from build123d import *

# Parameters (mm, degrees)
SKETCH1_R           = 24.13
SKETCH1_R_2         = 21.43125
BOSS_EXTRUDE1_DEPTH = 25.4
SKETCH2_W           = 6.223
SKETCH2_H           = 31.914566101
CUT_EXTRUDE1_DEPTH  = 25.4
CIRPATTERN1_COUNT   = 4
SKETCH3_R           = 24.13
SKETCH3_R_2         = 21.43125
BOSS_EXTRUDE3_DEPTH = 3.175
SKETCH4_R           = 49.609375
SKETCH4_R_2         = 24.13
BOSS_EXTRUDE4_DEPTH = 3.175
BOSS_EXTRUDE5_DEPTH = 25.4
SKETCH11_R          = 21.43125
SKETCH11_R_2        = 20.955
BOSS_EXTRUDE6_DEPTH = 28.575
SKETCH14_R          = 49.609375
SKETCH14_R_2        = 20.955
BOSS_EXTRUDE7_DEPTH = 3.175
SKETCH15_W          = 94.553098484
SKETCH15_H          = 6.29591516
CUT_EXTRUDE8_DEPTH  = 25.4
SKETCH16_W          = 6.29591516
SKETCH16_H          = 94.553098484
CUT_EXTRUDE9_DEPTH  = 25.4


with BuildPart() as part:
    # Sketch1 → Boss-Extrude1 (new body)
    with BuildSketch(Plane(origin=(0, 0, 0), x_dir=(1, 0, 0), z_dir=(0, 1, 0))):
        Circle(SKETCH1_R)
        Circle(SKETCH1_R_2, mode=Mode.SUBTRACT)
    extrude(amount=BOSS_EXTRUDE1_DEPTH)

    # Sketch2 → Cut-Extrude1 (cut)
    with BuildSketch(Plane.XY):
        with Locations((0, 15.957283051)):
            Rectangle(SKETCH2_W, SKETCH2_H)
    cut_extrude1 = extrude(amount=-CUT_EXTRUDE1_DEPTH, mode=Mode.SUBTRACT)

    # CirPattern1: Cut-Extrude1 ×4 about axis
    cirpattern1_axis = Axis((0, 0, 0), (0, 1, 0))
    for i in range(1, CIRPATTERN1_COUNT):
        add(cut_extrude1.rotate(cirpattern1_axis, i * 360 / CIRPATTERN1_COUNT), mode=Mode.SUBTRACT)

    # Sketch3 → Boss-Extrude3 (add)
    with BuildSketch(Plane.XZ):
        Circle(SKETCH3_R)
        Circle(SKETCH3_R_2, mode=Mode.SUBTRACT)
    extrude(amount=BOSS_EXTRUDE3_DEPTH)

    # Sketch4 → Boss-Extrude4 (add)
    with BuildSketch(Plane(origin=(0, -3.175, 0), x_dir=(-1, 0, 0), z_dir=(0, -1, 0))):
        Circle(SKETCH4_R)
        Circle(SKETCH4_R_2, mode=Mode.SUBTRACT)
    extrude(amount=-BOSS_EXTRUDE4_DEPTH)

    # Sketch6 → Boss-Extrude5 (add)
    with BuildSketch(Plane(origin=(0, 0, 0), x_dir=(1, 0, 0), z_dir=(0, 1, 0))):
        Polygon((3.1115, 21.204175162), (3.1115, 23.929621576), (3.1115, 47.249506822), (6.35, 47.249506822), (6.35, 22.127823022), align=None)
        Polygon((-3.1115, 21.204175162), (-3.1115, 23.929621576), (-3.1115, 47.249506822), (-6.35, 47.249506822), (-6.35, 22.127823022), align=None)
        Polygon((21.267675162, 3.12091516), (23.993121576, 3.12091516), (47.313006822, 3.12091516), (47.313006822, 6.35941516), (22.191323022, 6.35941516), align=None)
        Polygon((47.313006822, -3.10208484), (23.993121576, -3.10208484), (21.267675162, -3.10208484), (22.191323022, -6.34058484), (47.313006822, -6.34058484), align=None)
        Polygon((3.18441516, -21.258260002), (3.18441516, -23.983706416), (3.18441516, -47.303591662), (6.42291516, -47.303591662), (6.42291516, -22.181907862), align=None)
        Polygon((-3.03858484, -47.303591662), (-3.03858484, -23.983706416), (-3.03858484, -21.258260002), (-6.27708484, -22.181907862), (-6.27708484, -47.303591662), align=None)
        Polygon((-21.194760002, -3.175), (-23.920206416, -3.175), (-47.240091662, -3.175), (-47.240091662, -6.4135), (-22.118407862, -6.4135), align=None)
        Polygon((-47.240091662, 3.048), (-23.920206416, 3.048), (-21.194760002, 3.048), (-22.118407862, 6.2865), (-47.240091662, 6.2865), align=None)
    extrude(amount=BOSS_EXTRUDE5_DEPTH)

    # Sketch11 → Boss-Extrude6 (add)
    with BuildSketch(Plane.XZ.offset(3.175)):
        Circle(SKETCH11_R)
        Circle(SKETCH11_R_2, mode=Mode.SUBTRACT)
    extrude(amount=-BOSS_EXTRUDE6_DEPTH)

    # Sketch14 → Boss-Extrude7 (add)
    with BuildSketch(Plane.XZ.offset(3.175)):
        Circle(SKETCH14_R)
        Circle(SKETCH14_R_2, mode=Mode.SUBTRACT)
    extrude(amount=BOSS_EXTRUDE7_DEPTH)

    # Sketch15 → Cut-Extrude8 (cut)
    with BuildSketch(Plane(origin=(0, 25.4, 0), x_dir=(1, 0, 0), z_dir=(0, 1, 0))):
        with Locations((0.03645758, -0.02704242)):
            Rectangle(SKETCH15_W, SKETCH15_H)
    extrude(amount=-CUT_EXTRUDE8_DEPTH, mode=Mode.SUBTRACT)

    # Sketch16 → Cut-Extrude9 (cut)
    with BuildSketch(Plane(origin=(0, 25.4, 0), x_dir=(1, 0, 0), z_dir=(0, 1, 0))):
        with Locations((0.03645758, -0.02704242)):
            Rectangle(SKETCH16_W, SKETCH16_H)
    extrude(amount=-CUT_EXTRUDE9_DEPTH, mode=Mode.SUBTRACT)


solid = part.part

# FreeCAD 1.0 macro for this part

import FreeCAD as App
import Part
import Sketcher
from FreeCAD import Vector
Q = App.Units.Quantity

doc = App.newDocument("Part")
body = doc.addObject("PartDesign::Body", "Body")
body.AllowCompound = True

sketch1 = doc.addObject("Sketcher::SketchObject", "Sketch")
body.addObject(sketch1)
sketch1.AttachmentSupport = (doc.XZ_Plane, [""])
sketch1.MapMode = "FlatFace"
sketch1.addGeometry(Part.Circle(Vector(0, 0, 0), Vector(0, 0, 1), 24), False)
sketch1.addGeometry(Part.Circle(Vector(0, 0, 0), Vector(0, 0, 1), 21), False)
sketch1.addConstraint(Sketcher.Constraint("Coincident", 0, 3, -1, 1))
sketch1.addConstraint(Sketcher.Constraint("Coincident", 1, 3, -1, 1))
sketch1.addConstraint(Sketcher.Constraint("Diameter", 0, Q("1.9 in")))
sketch1.addConstraint(Sketcher.Constraint("Diameter", 1, Q("1.6875 in")))
pad1 = doc.addObject("PartDesign::Pad", "Pad")
body.addObject(pad1)
pad1.Profile = sketch1
pad1.Length = Q("1 in")
pad1.Reversed = True

sketch2 = doc.addObject("Sketcher::SketchObject", "Sketch001")
body.addObject(sketch2)
sketch2.AttachmentSupport = (doc.XY_Plane, [""])
sketch2.MapMode = "FlatFace"
sketch2.addGeometry(Part.LineSegment(Vector(-3, 32, 0), Vector(-3, 0, 0)), False)
sketch2.addGeometry(Part.LineSegment(Vector(-3, 0, 0), Vector(3, 0, 0)), False)
sketch2.addGeometry(Part.LineSegment(Vector(3, 0, 0), Vector(3, 32, 0)), False)
sketch2.addGeometry(Part.LineSegment(Vector(3, 32, 0), Vector(-3, 32, 0)), False)
sketch2.addConstraint(Sketcher.Constraint("Coincident", 0, 2, 1, 1))
sketch2.addConstraint(Sketcher.Constraint("Coincident", 1, 2, 2, 1))
sketch2.addConstraint(Sketcher.Constraint("Coincident", 2, 2, 3, 1))
sketch2.addConstraint(Sketcher.Constraint("Coincident", 3, 2, 0, 1))
sketch2.addConstraint(Sketcher.Constraint("Vertical", 0))
sketch2.addConstraint(Sketcher.Constraint("Horizontal", 1))
sketch2.addConstraint(Sketcher.Constraint("Vertical", 2))
sketch2.addConstraint(Sketcher.Constraint("Horizontal", 3))
sketch2.addConstraint(Sketcher.Constraint("Symmetric", 0, 2, 1, 2, -1, 1))
sketch2.addConstraint(Sketcher.Constraint("DistanceX", 1, 1, 1, 2, Q("0.245 in")))
sketch2.addConstraint(Sketcher.Constraint("DistanceY", 0, 2, 0, 1, Q("31.914566 mm")))
pocket1 = doc.addObject("PartDesign::Pocket", "Pocket")
body.addObject(pocket1)
pocket1.Profile = sketch2
pocket1.Length = Q("1 in")
doc.recompute()

polarpattern = doc.addObject("PartDesign::PolarPattern", "PolarPattern")
body.addObject(polarpattern)
polarpattern.Originals = [pocket1]
polarpattern.Axis = (doc.Y_Axis, [""])
polarpattern.Angle = 360
polarpattern.Occurrences = 4
body.Tip = polarpattern

sketch3 = doc.addObject("Sketcher::SketchObject", "Sketch002")
body.addObject(sketch3)
sketch3.AttachmentSupport = (doc.XZ_Plane, [""])
sketch3.MapMode = "FlatFace"
sketch3.addGeometry(Part.Circle(Vector(0, 0, 0), Vector(0, 0, 1), 24), False)
sketch3.addGeometry(Part.Circle(Vector(0, 0, 0), Vector(0, 0, 1), 21), False)
sketch3.addConstraint(Sketcher.Constraint("Coincident", 0, 3, -1, 1))
sketch3.addConstraint(Sketcher.Constraint("Coincident", 1, 3, -1, 1))
sketch3.addConstraint(Sketcher.Constraint("Diameter", 0, Q("1.9 in")))
sketch3.addConstraint(Sketcher.Constraint("Diameter", 1, Q("1.6875 in")))
pad2 = doc.addObject("PartDesign::Pad", "Pad001")
body.addObject(pad2)
pad2.Profile = sketch3
pad2.Length = Q("0.125 in")

sketch4 = doc.addObject("Sketcher::SketchObject", "Sketch003")
body.addObject(sketch4)
sketch4.AttachmentSupport = (doc.XZ_Plane, [""])
sketch4.MapMode = "FlatFace"
sketch4.AttachmentOffset = App.Placement(Vector(0, 0, 0.125 * 25.4), App.Rotation())
sketch4.addGeometry(Part.Circle(Vector(0, 0, 0), Vector(0, 0, 1), 50), False)
sketch4.addGeometry(Part.Circle(Vector(0, 0, 0), Vector(0, 0, 1), 24), False)
sketch4.addConstraint(Sketcher.Constraint("Coincident", 0, 3, -1, 1))
sketch4.addConstraint(Sketcher.Constraint("Coincident", 1, 3, -1, 1))
sketch4.addConstraint(Sketcher.Constraint("Diameter", 1, Q("1.9 in")))
sketch4.addConstraint(Sketcher.Constraint("Diameter", 0, Q("3.90625 in")))
pad3 = doc.addObject("PartDesign::Pad", "Pad002")
body.addObject(pad3)
pad3.Profile = sketch4
pad3.Length = Q("0.125 in")
pad3.Reversed = True

sketch5 = doc.addObject("Sketcher::SketchObject", "Sketch004")
body.addObject(sketch5)
sketch5.AttachmentSupport = (doc.XZ_Plane, [""])
sketch5.MapMode = "FlatFace"
sketch5.addGeometry(Part.LineSegment(Vector(3.1, -47.2, 0), Vector(3.1, -21.2, 0)), False)
sketch5.addGeometry(Part.LineSegment(Vector(3.1, -21.2, 0), Vector(6.3, -22.1, 0)), False)
sketch5.addGeometry(Part.LineSegment(Vector(6.3, -22.1, 0), Vector(6.3, -47.2, 0)), False)
sketch5.addGeometry(Part.LineSegment(Vector(6.3, -47.2, 0), Vector(3.1, -47.2, 0)), False)
sketch5.addGeometry(Part.LineSegment(Vector(-3.1, -21.2, 0), Vector(-3.1, -47.2, 0)), False)
sketch5.addGeometry(Part.LineSegment(Vector(-3.1, -47.2, 0), Vector(-6.3, -47.2, 0)), False)
sketch5.addGeometry(Part.LineSegment(Vector(-6.3, -47.2, 0), Vector(-6.3, -22.1, 0)), False)
sketch5.addGeometry(Part.LineSegment(Vector(-6.3, -22.1, 0), Vector(-3.1, -21.2, 0)), False)
sketch5.addGeometry(Part.LineSegment(Vector(21.3, -3.1, 0), Vector(47.3, -3.1, 0)), False)
sketch5.addGeometry(Part.LineSegment(Vector(47.3, -3.1, 0), Vector(47.3, -6.4, 0)), False)
sketch5.addGeometry(Part.LineSegment(Vector(47.3, -6.4, 0), Vector(22.2, -6.4, 0)), False)
sketch5.addGeometry(Part.LineSegment(Vector(22.2, -6.4, 0), Vector(21.3, -3.1, 0)), False)
sketch5.addGeometry(Part.LineSegment(Vector(47.3, 3.1, 0), Vector(21.3, 3.1, 0)), False)
sketch5.addGeometry(Part.LineSegment(Vector(21.3, 3.1, 0), Vector(22.2, 6.3, 0)), False)
sketch5.addGeometry(Part.LineSegment(Vector(22.2, 6.3, 0), Vector(47.3, 6.3, 0)), False)
sketch5.addGeometry(Part.LineSegment(Vector(47.3, 6.3, 0), Vector(47.3, 3.1, 0)), False)
sketch5.addGeometry(Part.LineSegment(Vector(3.2, 21.3, 0), Vector(3.2, 47.3, 0)), False)
sketch5.addGeometry(Part.LineSegment(Vector(3.2, 47.3, 0), Vector(6.4, 47.3, 0)), False)
sketch5.addGeometry(Part.LineSegment(Vector(6.4, 47.3, 0), Vector(6.4, 22.2, 0)), False)
sketch5.addGeometry(Part.LineSegment(Vector(6.4, 22.2, 0), Vector(3.2, 21.3, 0)), False)
sketch5.addGeometry(Part.LineSegment(Vector(-3, 47.3, 0), Vector(-3, 21.3, 0)), False)
sketch5.addGeometry(Part.LineSegment(Vector(-3, 21.3, 0), Vector(-6.3, 22.2, 0)), False)
sketch5.addGeometry(Part.LineSegment(Vector(-6.3, 22.2, 0), Vector(-6.3, 47.3, 0)), False)
sketch5.addGeometry(Part.LineSegment(Vector(-6.3, 47.3, 0), Vector(-3, 47.3, 0)), False)
sketch5.addGeometry(Part.LineSegment(Vector(-21.2, 3.2, 0), Vector(-47.2, 3.2, 0)), False)
sketch5.addGeometry(Part.LineSegment(Vector(-47.2, 3.2, 0), Vector(-47.2, 6.4, 0)), False)
sketch5.addGeometry(Part.LineSegment(Vector(-47.2, 6.4, 0), Vector(-22.1, 6.4, 0)), False)
sketch5.addGeometry(Part.LineSegment(Vector(-22.1, 6.4, 0), Vector(-21.2, 3.2, 0)), False)
sketch5.addGeometry(Part.LineSegment(Vector(-47.2, -3, 0), Vector(-21.2, -3, 0)), False)
sketch5.addGeometry(Part.LineSegment(Vector(-21.2, -3, 0), Vector(-22.1, -6.3, 0)), False)
sketch5.addGeometry(Part.LineSegment(Vector(-22.1, -6.3, 0), Vector(-47.2, -6.3, 0)), False)
sketch5.addGeometry(Part.LineSegment(Vector(-47.2, -6.3, 0), Vector(-47.2, -3, 0)), False)
sketch5.addConstraint(Sketcher.Constraint("Coincident", 0, 2, 1, 1))
sketch5.addConstraint(Sketcher.Constraint("Coincident", 1, 2, 2, 1))
sketch5.addConstraint(Sketcher.Constraint("Coincident", 2, 2, 3, 1))
sketch5.addConstraint(Sketcher.Constraint("Coincident", 3, 2, 0, 1))
sketch5.addConstraint(Sketcher.Constraint("Coincident", 4, 2, 5, 1))
sketch5.addConstraint(Sketcher.Constraint("Coincident", 5, 2, 6, 1))
sketch5.addConstraint(Sketcher.Constraint("Coincident", 6, 2, 7, 1))
sketch5.addConstraint(Sketcher.Constraint("Coincident", 7, 2, 4, 1))
sketch5.addConstraint(Sketcher.Constraint("Coincident", 8, 2, 9, 1))
sketch5.addConstraint(Sketcher.Constraint("Coincident", 9, 2, 10, 1))
sketch5.addConstraint(Sketcher.Constraint("Coincident", 10, 2, 11, 1))
sketch5.addConstraint(Sketcher.Constraint("Coincident", 11, 2, 8, 1))
sketch5.addConstraint(Sketcher.Constraint("Coincident", 12, 2, 13, 1))
sketch5.addConstraint(Sketcher.Constraint("Coincident", 13, 2, 14, 1))
sketch5.addConstraint(Sketcher.Constraint("Coincident", 14, 2, 15, 1))
sketch5.addConstraint(Sketcher.Constraint("Coincident", 15, 2, 12, 1))
sketch5.addConstraint(Sketcher.Constraint("Coincident", 16, 2, 17, 1))
sketch5.addConstraint(Sketcher.Constraint("Coincident", 17, 2, 18, 1))
sketch5.addConstraint(Sketcher.Constraint("Coincident", 18, 2, 19, 1))
sketch5.addConstraint(Sketcher.Constraint("Coincident", 19, 2, 16, 1))
sketch5.addConstraint(Sketcher.Constraint("Coincident", 20, 2, 21, 1))
sketch5.addConstraint(Sketcher.Constraint("Coincident", 21, 2, 22, 1))
sketch5.addConstraint(Sketcher.Constraint("Coincident", 22, 2, 23, 1))
sketch5.addConstraint(Sketcher.Constraint("Coincident", 23, 2, 20, 1))
sketch5.addConstraint(Sketcher.Constraint("Coincident", 24, 2, 25, 1))
sketch5.addConstraint(Sketcher.Constraint("Coincident", 25, 2, 26, 1))
sketch5.addConstraint(Sketcher.Constraint("Coincident", 26, 2, 27, 1))
sketch5.addConstraint(Sketcher.Constraint("Coincident", 27, 2, 24, 1))
sketch5.addConstraint(Sketcher.Constraint("Coincident", 28, 2, 29, 1))
sketch5.addConstraint(Sketcher.Constraint("Coincident", 29, 2, 30, 1))
sketch5.addConstraint(Sketcher.Constraint("Coincident", 30, 2, 31, 1))
sketch5.addConstraint(Sketcher.Constraint("Coincident", 31, 2, 28, 1))
sketch5.addConstraint(Sketcher.Constraint("Vertical", 0))
sketch5.addConstraint(Sketcher.Constraint("Vertical", 2))
sketch5.addConstraint(Sketcher.Constraint("Horizontal", 3))
sketch5.addConstraint(Sketcher.Constraint("Vertical", 4))
sketch5.addConstraint(Sketcher.Constraint("Horizontal", 5))
sketch5.addConstraint(Sketcher.Constraint("Vertical", 6))
sketch5.addConstraint(Sketcher.Constraint("Horizontal", 8))
sketch5.addConstraint(Sketcher.Constraint("Vertical", 9))
sketch5.addConstraint(Sketcher.Constraint("Horizontal", 10))
sketch5.addConstraint(Sketcher.Constraint("Horizontal", 12))
sketch5.addConstraint(Sketcher.Constraint("Horizontal", 14))
sketch5.addConstraint(Sketcher.Constraint("Vertical", 15))
sketch5.addConstraint(Sketcher.Constraint("Vertical", 16))
sketch5.addConstraint(Sketcher.Constraint("Horizontal", 17))
sketch5.addConstraint(Sketcher.Constraint("Vertical", 18))
sketch5.addConstraint(Sketcher.Constraint("Vertical", 20))
sketch5.addConstraint(Sketcher.Constraint("Vertical", 22))
sketch5.addConstraint(Sketcher.Constraint("Horizontal", 23))
sketch5.addConstraint(Sketcher.Constraint("Horizontal", 24))
sketch5.addConstraint(Sketcher.Constraint("Vertical", 25))
sketch5.addConstraint(Sketcher.Constraint("Horizontal", 26))
sketch5.addConstraint(Sketcher.Constraint("Horizontal", 28))
sketch5.addConstraint(Sketcher.Constraint("Horizontal", 30))
sketch5.addConstraint(Sketcher.Constraint("Vertical", 31))
sketch5.addConstraint(Sketcher.Constraint("Symmetric", 3, 2, 4, 2, -2))
sketch5.addConstraint(Sketcher.Constraint("Symmetric", 1, 2, 6, 2, -2))
sketch5.addConstraint(Sketcher.Constraint("Perpendicular", 7, 11))
sketch5.addConstraint(Sketcher.Constraint("Perpendicular", 1, 13))
sketch5.addConstraint(Sketcher.Constraint("Perpendicular", 11, 19))
sketch5.addConstraint(Sketcher.Constraint("Perpendicular", 13, 21))
sketch5.addConstraint(Sketcher.Constraint("Perpendicular", 19, 27))
sketch5.addConstraint(Sketcher.Constraint("Perpendicular", 21, 29))
sketch5.addConstraint(Sketcher.Constraint("Horizontal", 0, 2, 7, 2))
sketch5.addConstraint(Sketcher.Constraint("Horizontal", 19, 2, 20, 2))
sketch5.addConstraint(Sketcher.Constraint("Horizontal", 18, 2, 21, 2))
sketch5.addConstraint(Sketcher.Constraint("Horizontal", 17, 2, 22, 2))
sketch5.addConstraint(Sketcher.Constraint("Vertical", 11, 2, 12, 2))
sketch5.addConstraint(Sketcher.Constraint("Vertical", 10, 2, 13, 2))
sketch5.addConstraint(Sketcher.Constraint("Vertical", 9, 2, 14, 2))
sketch5.addConstraint(Sketcher.Constraint("Vertical", 27, 2, 28, 2))
sketch5.addConstraint(Sketcher.Constraint("Vertical", 26, 2, 29, 2))
sketch5.addConstraint(Sketcher.Constraint("Vertical", 25, 2, 30, 2))
sketch5.addConstraint(Sketcher.Constraint("Equal", 5, 17))
sketch5.addConstraint(Sketcher.Constraint("Equal", 12, 24))
sketch5.addConstraint(Sketcher.Constraint("Equal", 14, 26))
sketch5.addConstraint(Sketcher.Constraint("Equal", 28, 0))
sketch5.addConstraint(Sketcher.Constraint("Equal", 30, 2))
sketch5.addConstraint(Sketcher.Constraint("Equal", 4, 16))
sketch5.addConstraint(Sketcher.Constraint("DistanceX", 5, 2, 2, 2, Q("0.5 in")))
sketch5.addConstraint(Sketcher.Constraint("DistanceY", 10, 2, 13, 2, Q("0.5 in")))
sketch5.addConstraint(Sketcher.Constraint("DistanceX", 21, 2, 18, 2, Q("0.5 in")))
sketch5.addConstraint(Sketcher.Constraint("DistanceY", 29, 2, 26, 2, Q("0.5 in")))
sketch5.addConstraint(Sketcher.Constraint("DistanceY", 28, 2, -1, 1, Q("0.12 in")))
sketch5.addConstraint(Sketcher.Constraint("DistanceX", 3, 2, 3, 1, Q("0.1275 in")))
sketch5.addConstraint(Sketcher.Constraint("DistanceX", 8, 1, 8, 2, Q("26.045332 mm")))
sketch5.addConstraint(Sketcher.Constraint("Distance", 1, Q("3.367641 mm")))
sketch5.addConstraint(Sketcher.Constraint("DistanceY", -1, 1, 16, 2, Q("47.303592 mm")))
sketch5.addConstraint(Sketcher.Constraint("DistanceX", 24, 2, -1, 1, Q("47.240092 mm")))
sketch5.addConstraint(Sketcher.Constraint("DistanceY", 0, 2, 8, 2, Q("18.08326 mm")))
sketch5.addConstraint(Sketcher.Constraint("DistanceX", 16, 2, 12, 2, Q("18.08326 mm")))
sketch5.addConstraint(Sketcher.Constraint("DistanceY", 0, 2, -1, 1, Q("21.204175 mm")))
sketch5.addConstraint(Sketcher.Constraint("DistanceX", -1, 1, 8, 2, Q("47.313007 mm")))
pad4 = doc.addObject("PartDesign::Pad", "Pad003")
body.addObject(pad4)
pad4.Profile = sketch5
pad4.Length = Q("1 in")
pad4.Reversed = True

sketch6 = doc.addObject("Sketcher::SketchObject", "Sketch005")
body.addObject(sketch6)
sketch6.AttachmentSupport = (doc.XZ_Plane, [""])
sketch6.MapMode = "FlatFace"
sketch6.AttachmentOffset = App.Placement(Vector(0, 0, 0.125 * 25.4), App.Rotation())
sketch6.addGeometry(Part.Circle(Vector(0, 0, 0), Vector(0, 0, 1), 21), False)
sketch6.addGeometry(Part.Circle(Vector(0, 0, 0), Vector(0, 0, 1), 21), False)
sketch6.addConstraint(Sketcher.Constraint("Coincident", 0, 3, -1, 1))
sketch6.addConstraint(Sketcher.Constraint("Coincident", 1, 3, -1, 1))
sketch6.addConstraint(Sketcher.Constraint("Diameter", 1, Q("1.65 in")))
sketch6.addConstraint(Sketcher.Constraint("Diameter", 0, Q("1.6875 in")))
pad5 = doc.addObject("PartDesign::Pad", "Pad004")
body.addObject(pad5)
pad5.Profile = sketch6
pad5.Length = Q("1.125 in")
pad5.Reversed = True

sketch7 = doc.addObject("Sketcher::SketchObject", "Sketch006")
body.addObject(sketch7)
sketch7.AttachmentSupport = (doc.XZ_Plane, [""])
sketch7.MapMode = "FlatFace"
sketch7.AttachmentOffset = App.Placement(Vector(0, 0, 0.125 * 25.4), App.Rotation())
sketch7.addGeometry(Part.Circle(Vector(0, 0, 0), Vector(0, 0, 1), 50), False)
sketch7.addGeometry(Part.Circle(Vector(0, 0, 0), Vector(0, 0, 1), 21), False)
sketch7.addConstraint(Sketcher.Constraint("Coincident", 0, 3, -1, 1))
sketch7.addConstraint(Sketcher.Constraint("Coincident", 1, 3, -1, 1))
sketch7.addConstraint(Sketcher.Constraint("Diameter", 1, Q("1.65 in")))
sketch7.addConstraint(Sketcher.Constraint("Diameter", 0, Q("3.90625 in")))
pad6 = doc.addObject("PartDesign::Pad", "Pad005")
body.addObject(pad6)
pad6.Profile = sketch7
pad6.Length = Q("0.125 in")

sketch8 = doc.addObject("Sketcher::SketchObject", "Sketch007")
body.addObject(sketch8)
sketch8.AttachmentSupport = (doc.XZ_Plane, [""])
sketch8.MapMode = "FlatFace"
sketch8.AttachmentOffset = App.Placement(Vector(0, 0, -1 * 25.4), App.Rotation())
sketch8.addGeometry(Part.LineSegment(Vector(-47, -3, 0), Vector(-47, 3, 0)), False)
sketch8.addGeometry(Part.LineSegment(Vector(-47, 3, 0), Vector(47, 3, 0)), False)
sketch8.addGeometry(Part.LineSegment(Vector(47, 3, 0), Vector(47, -3, 0)), False)
sketch8.addGeometry(Part.LineSegment(Vector(47, -3, 0), Vector(-47, -3, 0)), False)
sketch8.addConstraint(Sketcher.Constraint("Coincident", 0, 2, 1, 1))
sketch8.addConstraint(Sketcher.Constraint("Coincident", 1, 2, 2, 1))
sketch8.addConstraint(Sketcher.Constraint("Coincident", 2, 2, 3, 1))
sketch8.addConstraint(Sketcher.Constraint("Coincident", 3, 2, 0, 1))
sketch8.addConstraint(Sketcher.Constraint("Vertical", 0))
sketch8.addConstraint(Sketcher.Constraint("Horizontal", 1))
sketch8.addConstraint(Sketcher.Constraint("Vertical", 2))
sketch8.addConstraint(Sketcher.Constraint("Horizontal", 3))
sketch8.addConstraint(Sketcher.Constraint("DistanceY", -1, 1, 0, 2, Q("0.125 in")))
sketch8.addConstraint(Sketcher.Constraint("DistanceX", 1, 1, 1, 2, Q("94.553098 mm")))
sketch8.addConstraint(Sketcher.Constraint("DistanceY", 0, 1, 0, 2, Q("6.295915 mm")))
sketch8.addConstraint(Sketcher.Constraint("DistanceX", 0, 2, -1, 1, Q("47.240092 mm")))
pocket2 = doc.addObject("PartDesign::Pocket", "Pocket001")
body.addObject(pocket2)
pocket2.Profile = sketch8
pocket2.Length = Q("1 in")
pocket2.Reversed = True

sketch9 = doc.addObject("Sketcher::SketchObject", "Sketch008")
body.addObject(sketch9)
sketch9.AttachmentSupport = (doc.XZ_Plane, [""])
sketch9.MapMode = "FlatFace"
sketch9.AttachmentOffset = App.Placement(Vector(0, 0, -1 * 25.4), App.Rotation())
sketch9.addGeometry(Part.LineSegment(Vector(-3, -47, 0), Vector(-3, 47, 0)), False)
sketch9.addGeometry(Part.LineSegment(Vector(-3, 47, 0), Vector(3, 47, 0)), False)
sketch9.addGeometry(Part.LineSegment(Vector(3, 47, 0), Vector(3, -47, 0)), False)
sketch9.addGeometry(Part.LineSegment(Vector(3, -47, 0), Vector(-3, -47, 0)), False)
sketch9.addConstraint(Sketcher.Constraint("Coincident", 0, 2, 1, 1))
sketch9.addConstraint(Sketcher.Constraint("Coincident", 1, 2, 2, 1))
sketch9.addConstraint(Sketcher.Constraint("Coincident", 2, 2, 3, 1))
sketch9.addConstraint(Sketcher.Constraint("Coincident", 3, 2, 0, 1))
sketch9.addConstraint(Sketcher.Constraint("Vertical", 0))
sketch9.addConstraint(Sketcher.Constraint("Horizontal", 1))
sketch9.addConstraint(Sketcher.Constraint("Vertical", 2))
sketch9.addConstraint(Sketcher.Constraint("Horizontal", 3))
sketch9.addConstraint(Sketcher.Constraint("DistanceY", 0, 1, 0, 2, Q("94.553098 mm")))
sketch9.addConstraint(Sketcher.Constraint("DistanceX", 0, 2, -1, 1, Q("0.1225 in")))
sketch9.addConstraint(Sketcher.Constraint("DistanceX", 1, 1, 1, 2, Q("6.295915 mm")))
sketch9.addConstraint(Sketcher.Constraint("DistanceY", -1, 1, 0, 2, Q("47.303592 mm")))
pocket3 = doc.addObject("PartDesign::Pocket", "Pocket002")
body.addObject(pocket3)
pocket3.Profile = sketch9
pocket3.Length = Q("1 in")
pocket3.Reversed = True

doc.recompute()
